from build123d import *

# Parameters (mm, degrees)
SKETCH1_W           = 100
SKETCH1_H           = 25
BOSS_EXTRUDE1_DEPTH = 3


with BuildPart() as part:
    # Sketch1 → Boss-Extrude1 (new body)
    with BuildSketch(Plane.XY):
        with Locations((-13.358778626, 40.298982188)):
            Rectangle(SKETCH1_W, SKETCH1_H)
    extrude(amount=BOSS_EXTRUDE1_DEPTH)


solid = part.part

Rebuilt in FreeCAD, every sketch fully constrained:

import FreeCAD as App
import Part
import Sketcher
from FreeCAD import Vector
Q = App.Units.Quantity

doc = App.newDocument("Part")
params = doc.addObject("Spreadsheet::Sheet", "Params")
for row, (alias, value) in enumerate([
    ("sketch1_width", "100 mm"),
    ("sketch1_height", "25 mm"),
    ("pad1_length", "3 mm"),
], start=1):
    params.set(f"A{row}", alias)
    params.set(f"B{row}", "=" + value)
    params.setAlias(f"B{row}", alias)

body = doc.addObject("PartDesign::Body", "Body")

sketch1 = doc.addObject("Sketcher::SketchObject", "Sketch")
body.addObject(sketch1)
sketch1.AttachmentSupport = (doc.XY_Plane, [""])
sketch1.MapMode = "FlatFace"
sketch1.addGeometry([
    Part.LineSegment(Vector(-63.358779, 52.798982, 0), Vector(-63.358779, 27.798982, 0)),
    Part.LineSegment(Vector(-63.358779, 27.798982, 0), Vector(36.641221, 27.798982, 0)),
    Part.LineSegment(Vector(36.641221, 27.798982, 0), Vector(36.641221, 52.798982, 0)),
    Part.LineSegment(Vector(36.641221, 52.798982, 0), Vector(-63.358779, 52.798982, 0)),
], False)
sketch1.addConstraint([
    Sketcher.Constraint("Coincident", 0, 2, 1, 1),
    Sketcher.Constraint("Coincident", 1, 2, 2, 1),
    Sketcher.Constraint("Coincident", 2, 2, 3, 1),
    Sketcher.Constraint("Coincident", 3, 2, 0, 1),
    Sketcher.Constraint("Vertical", 0),
    Sketcher.Constraint("Horizontal", 1),
    Sketcher.Constraint("Vertical", 2),
    Sketcher.Constraint("Horizontal", 3),
    Sketcher.Constraint("DistanceX", 1, 1, 1, 2, Q("100 mm")),
    Sketcher.Constraint("DistanceY", 0, 2, 0, 1, Q("25 mm")),
    Sketcher.Constraint("DistanceX", 0, 2, -1, 1, Q("63.358779 mm")),
    Sketcher.Constraint("DistanceY", -1, 1, 0, 2, Q("27.798982 mm")),
])
sketch1.setExpression("Constraints[8]", "Params.sketch1_width")
sketch1.setExpression("Constraints[9]", "Params.sketch1_height")
pad1 = doc.addObject("PartDesign::Pad", "Pad")
body.addObject(pad1)
pad1.Profile = sketch1
pad1.setExpression("Length", "Params.pad1_length")

doc.recompute()
